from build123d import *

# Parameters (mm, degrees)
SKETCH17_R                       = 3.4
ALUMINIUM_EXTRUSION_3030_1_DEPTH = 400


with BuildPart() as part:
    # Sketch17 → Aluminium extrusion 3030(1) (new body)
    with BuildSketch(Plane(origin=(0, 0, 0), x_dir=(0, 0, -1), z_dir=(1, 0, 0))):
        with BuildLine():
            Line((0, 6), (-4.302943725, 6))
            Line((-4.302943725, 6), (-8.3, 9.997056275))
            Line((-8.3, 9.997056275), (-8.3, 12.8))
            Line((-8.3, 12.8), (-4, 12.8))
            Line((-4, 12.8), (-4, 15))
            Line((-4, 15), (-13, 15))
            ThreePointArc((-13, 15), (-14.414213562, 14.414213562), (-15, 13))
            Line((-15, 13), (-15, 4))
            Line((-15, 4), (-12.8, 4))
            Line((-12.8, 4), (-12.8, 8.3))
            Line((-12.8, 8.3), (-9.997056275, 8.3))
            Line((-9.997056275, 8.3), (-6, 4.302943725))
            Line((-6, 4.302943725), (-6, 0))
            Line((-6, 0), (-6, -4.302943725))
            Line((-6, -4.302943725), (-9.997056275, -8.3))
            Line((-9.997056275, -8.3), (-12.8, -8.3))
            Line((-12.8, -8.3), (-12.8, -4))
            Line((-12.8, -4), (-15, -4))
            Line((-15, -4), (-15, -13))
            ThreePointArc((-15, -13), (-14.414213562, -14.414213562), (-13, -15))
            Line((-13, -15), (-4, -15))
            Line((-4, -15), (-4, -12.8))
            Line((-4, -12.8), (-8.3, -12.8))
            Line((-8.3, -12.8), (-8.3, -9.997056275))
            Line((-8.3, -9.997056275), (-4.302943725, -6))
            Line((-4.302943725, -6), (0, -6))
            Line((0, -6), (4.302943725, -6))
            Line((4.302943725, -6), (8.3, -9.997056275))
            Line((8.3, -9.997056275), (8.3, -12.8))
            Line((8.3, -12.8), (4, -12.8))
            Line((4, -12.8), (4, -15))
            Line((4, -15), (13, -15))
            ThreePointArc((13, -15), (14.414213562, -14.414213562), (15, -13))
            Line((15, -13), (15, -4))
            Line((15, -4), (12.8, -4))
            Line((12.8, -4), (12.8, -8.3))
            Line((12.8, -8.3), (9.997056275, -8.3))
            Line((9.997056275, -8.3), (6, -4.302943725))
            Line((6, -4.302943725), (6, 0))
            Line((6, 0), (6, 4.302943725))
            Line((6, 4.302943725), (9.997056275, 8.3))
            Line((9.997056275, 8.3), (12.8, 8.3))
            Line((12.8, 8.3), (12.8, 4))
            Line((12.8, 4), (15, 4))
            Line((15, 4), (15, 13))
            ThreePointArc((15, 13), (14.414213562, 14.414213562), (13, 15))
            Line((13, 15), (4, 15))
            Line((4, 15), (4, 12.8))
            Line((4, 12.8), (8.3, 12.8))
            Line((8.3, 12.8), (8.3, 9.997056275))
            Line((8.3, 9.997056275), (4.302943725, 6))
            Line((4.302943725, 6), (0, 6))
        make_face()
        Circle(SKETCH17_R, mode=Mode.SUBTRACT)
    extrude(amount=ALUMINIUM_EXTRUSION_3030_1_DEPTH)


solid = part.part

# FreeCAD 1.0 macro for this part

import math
import FreeCAD as App
import Part
import Sketcher
from FreeCAD import Vector

doc = App.newDocument("Part")
body = doc.addObject("PartDesign::Body", "Body")

# Sketch on YZ plane
sketch1 = body.newObject("Sketcher::SketchObject", "Sketch")
sketch1.AttachmentSupport = (doc.getObject("YZ_Plane"), [""])
sketch1.MapMode = "FlatFace"
sketch1.addGeometry(Part.LineSegment(Vector(6, 4.3, 0), Vector(10, 8.3, 0)), False)
sketch1.addGeometry(Part.LineSegment(Vector(10, 8.3, 0), Vector(12.8, 8.3, 0)), False)
sketch1.addGeometry(Part.LineSegment(Vector(12.8, 8.3, 0), Vector(12.8, 4, 0)), False)
sketch1.addGeometry(Part.LineSegment(Vector(12.8, 4, 0), Vector(15, 4, 0)), False)
sketch1.addGeometry(Part.LineSegment(Vector(15, 4, 0), Vector(15, 13, 0)), False)
sketch1.addGeometry(Part.ArcOfCircle(Part.Circle(Vector(13, 13, 0), Vector(0, 0, 1), 2), math.radians(0), math.radians(90)), False)
sketch1.addGeometry(Part.LineSegment(Vector(13, 15, 0), Vector(4, 15, 0)), False)
sketch1.addGeometry(Part.LineSegment(Vector(4, 15, 0), Vector(4, 12.8, 0)), False)
sketch1.addGeometry(Part.LineSegment(Vector(4, 12.8, 0), Vector(8.3, 12.8, 0)), False)
sketch1.addGeometry(Part.LineSegment(Vector(8.3, 12.8, 0), Vector(8.3, 10, 0)), False)
sketch1.addGeometry(Part.LineSegment(Vector(8.3, 10, 0), Vector(4.3, 6, 0)), False)
sketch1.addGeometry(Part.LineSegment(Vector(4.3, 6, 0), Vector(-4.3, 6, 0)), False)
sketch1.addGeometry(Part.LineSegment(Vector(-4.3, 6, 0), Vector(-8.3, 10, 0)), False)
sketch1.addGeometry(Part.LineSegment(Vector(-8.3, 10, 0), Vector(-8.3, 12.8, 0)), False)
sketch1.addGeometry(Part.LineSegment(Vector(-8.3, 12.8, 0), Vector(-4, 12.8, 0)), False)
sketch1.addGeometry(Part.LineSegment(Vector(-4, 12.8, 0), Vector(-4, 15, 0)), False)
sketch1.addGeometry(Part.LineSegment(Vector(-4, 15, 0), Vector(-13, 15, 0)), False)
sketch1.addGeometry(Part.ArcOfCircle(Part.Circle(Vector(-13, 13, 0), Vector(0, 0, 1), 2), math.radians(90), math.radians(180)), False)
sketch1.addGeometry(Part.LineSegment(Vector(-15, 13, 0), Vector(-15, 4, 0)), False)
sketch1.addGeometry(Part.LineSegment(Vector(-15, 4, 0), Vector(-12.8, 4, 0)), False)
sketch1.addGeometry(Part.LineSegment(Vector(-12.8, 4, 0), Vector(-12.8, 8.3, 0)), False)
sketch1.addGeometry(Part.LineSegment(Vector(-12.8, 8.3, 0), Vector(-10, 8.3, 0)), False)
sketch1.addGeometry(Part.LineSegment(Vector(-10, 8.3, 0), Vector(-6, 4.3, 0)), False)
sketch1.addGeometry(Part.LineSegment(Vector(-6, 4.3, 0), Vector(-6, -4.3, 0)), False)
sketch1.addGeometry(Part.LineSegment(Vector(-6, -4.3, 0), Vector(-10, -8.3, 0)), False)
sketch1.addGeometry(Part.LineSegment(Vector(-10, -8.3, 0), Vector(-12.8, -8.3, 0)), False)
sketch1.addGeometry(Part.LineSegment(Vector(-12.8, -8.3, 0), Vector(-12.8, -4, 0)), False)
sketch1.addGeometry(Part.LineSegment(Vector(-12.8, -4, 0), Vector(-15, -4, 0)), False)
sketch1.addGeometry(Part.LineSegment(Vector(-15, -4, 0), Vector(-15, -13, 0)), False)
sketch1.addGeometry(Part.ArcOfCircle(Part.Circle(Vector(-13, -13, 0), Vector(0, 0, 1), 2), math.radians(-180), math.radians(-90)), False)
sketch1.addGeometry(Part.LineSegment(Vector(-13, -15, 0), Vector(-4, -15, 0)), False)
sketch1.addGeometry(Part.LineSegment(Vector(-4, -15, 0), Vector(-4, -12.8, 0)), False)
sketch1.addGeometry(Part.LineSegment(Vector(-4, -12.8, 0), Vector(-8.3, -12.8, 0)), False)
sketch1.addGeometry(Part.LineSegment(Vector(-8.3, -12.8, 0), Vector(-8.3, -10, 0)), False)
sketch1.addGeometry(Part.LineSegment(Vector(-8.3, -10, 0), Vector(-4.3, -6, 0)), False)
sketch1.addGeometry(Part.LineSegment(Vector(-4.3, -6, 0), Vector(4.3, -6, 0)), False)
sketch1.addGeometry(Part.LineSegment(Vector(4.3, -6, 0), Vector(8.3, -10, 0)), False)
sketch1.addGeometry(Part.LineSegment(Vector(8.3, -10, 0), Vector(8.3, -12.8, 0)), False)
sketch1.addGeometry(Part.LineSegment(Vector(8.3, -12.8, 0), Vector(4, -12.8, 0)), False)
sketch1.addGeometry(Part.LineSegment(Vector(4, -12.8, 0), Vector(4, -15, 0)), False)
sketch1.addGeometry(Part.LineSegment(Vector(4, -15, 0), Vector(13, -15, 0)), False)
sketch1.addGeometry(Part.ArcOfCircle(Part.Circle(Vector(13, -13, 0), Vector(0, 0, 1), 2), math.radians(-90), math.radians(0)), False)
sketch1.addGeometry(Part.LineSegment(Vector(15, -13, 0), Vector(15, -4, 0)), False)
sketch1.addGeometry(Part.LineSegment(Vector(15, -4, 0), Vector(12.8, -4, 0)), False)
sketch1.addGeometry(Part.LineSegment(Vector(12.8, -4, 0), Vector(12.8, -8.3, 0)), False)
sketch1.addGeometry(Part.LineSegment(Vector(12.8, -8.3, 0), Vector(10, -8.3, 0)), False)
sketch1.addGeometry(Part.LineSegment(Vector(10, -8.3, 0), Vector(6, -4.3, 0)), False)
sketch1.addGeometry(Part.LineSegment(Vector(6, -4.3, 0), Vector(6, 4.3, 0)), False)
sketch1.addGeometry(Part.Circle(Vector(0, 0, 0), Vector(0, 0, 1), 3.4), False)
sketch1.addConstraint(Sketcher.Constraint("Coincident", 0, 2, 1, 1))
sketch1.addConstraint(Sketcher.Constraint("Coincident", 1, 2, 2, 1))
sketch1.addConstraint(Sketcher.Constraint("Coincident", 2, 2, 3, 1))
sketch1.addConstraint(Sketcher.Constraint("Coincident", 3, 2, 4, 1))
sketch1.addConstraint(Sketcher.Constraint("Tangent", 4, 2, 5, 1))
sketch1.addConstraint(Sketcher.Constraint("Tangent", 5, 2, 6, 1))
sketch1.addConstraint(Sketcher.Constraint("Coincident", 6, 2, 7, 1))
sketch1.addConstraint(Sketcher.Constraint("Coincident", 7, 2, 8, 1))
sketch1.addConstraint(Sketcher.Constraint("Coincident", 8, 2, 9, 1))
sketch1.addConstraint(Sketcher.Constraint("Coincident", 9, 2, 10, 1))
sketch1.addConstraint(Sketcher.Constraint("Coincident", 10, 2, 11, 1))
sketch1.addConstraint(Sketcher.Constraint("Coincident", 11, 2, 12, 1))
sketch1.addConstraint(Sketcher.Constraint("Coincident", 12, 2, 13, 1))
sketch1.addConstraint(Sketcher.Constraint("Coincident", 13, 2, 14, 1))
sketch1.addConstraint(Sketcher.Constraint("Coincident", 14, 2, 15, 1))
sketch1.addConstraint(Sketcher.Constraint("Coincident", 15, 2, 16, 1))
sketch1.addConstraint(Sketcher.Constraint("Tangent", 16, 2, 17, 1))
sketch1.addConstraint(Sketcher.Constraint("Tangent", 17, 2, 18, 1))
sketch1.addConstraint(Sketcher.Constraint("Coincident", 18, 2, 19, 1))
sketch1.addConstraint(Sketcher.Constraint("Coincident", 19, 2, 20, 1))
sketch1.addConstraint(Sketcher.Constraint("Coincident", 20, 2, 21, 1))
sketch1.addConstraint(Sketcher.Constraint("Coincident", 21, 2, 22, 1))
sketch1.addConstraint(Sketcher.Constraint("Coincident", 22, 2, 23, 1))
sketch1.addConstraint(Sketcher.Constraint("Coincident", 23, 2, 24, 1))
sketch1.addConstraint(Sketcher.Constraint("Coincident", 24, 2, 25, 1))
sketch1.addConstraint(Sketcher.Constraint("Coincident", 25, 2, 26, 1))
sketch1.addConstraint(Sketcher.Constraint("Coincident", 26, 2, 27, 1))
sketch1.addConstraint(Sketcher.Constraint("Coincident", 27, 2, 28, 1))
sketch1.addConstraint(Sketcher.Constraint("Tangent", 28, 2, 29, 1))
sketch1.addConstraint(Sketcher.Constraint("Tangent", 29, 2, 30, 1))
sketch1.addConstraint(Sketcher.Constraint("Coincident", 30, 2, 31, 1))
sketch1.addConstraint(Sketcher.Constraint("Coincident", 31, 2, 32, 1))
sketch1.addConstraint(Sketcher.Constraint("Coincident", 32, 2, 33, 1))
sketch1.addConstraint(Sketcher.Constraint("Coincident", 33, 2, 34, 1))
sketch1.addConstraint(Sketcher.Constraint("Coincident", 34, 2, 35, 1))
sketch1.addConstraint(Sketcher.Constraint("Coincident", 35, 2, 36, 1))
sketch1.addConstraint(Sketcher.Constraint("Coincident", 36, 2, 37, 1))
sketch1.addConstraint(Sketcher.Constraint("Coincident", 37, 2, 38, 1))
sketch1.addConstraint(Sketcher.Constraint("Coincident", 38, 2, 39, 1))
sketch1.addConstraint(Sketcher.Constraint("Coincident", 39, 2, 40, 1))
sketch1.addConstraint(Sketcher.Constraint("Tangent", 40, 2, 41, 1))
sketch1.addConstraint(Sketcher.Constraint("Tangent", 41, 2, 42, 1))
sketch1.addConstraint(Sketcher.Constraint("Coincident", 42, 2, 43, 1))
sketch1.addConstraint(Sketcher.Constraint("Coincident", 43, 2, 44, 1))
sketch1.addConstraint(Sketcher.Constraint("Coincident", 44, 2, 45, 1))
sketch1.addConstraint(Sketcher.Constraint("Coincident", 45, 2, 46, 1))
sketch1.addConstraint(Sketcher.Constraint("Coincident", 46, 2, 47, 1))
sketch1.addConstraint(Sketcher.Constraint("Coincident", 47, 2, 0, 1))
sketch1.addConstraint(Sketcher.Constraint("Horizontal", 1))
sketch1.addConstraint(Sketcher.Constraint("Vertical", 2))
sketch1.addConstraint(Sketcher.Constraint("Horizontal", 3))
sketch1.addConstraint(Sketcher.Constraint("Vertical", 4))
sketch1.addConstraint(Sketcher.Constraint("Horizontal", 6))
sketch1.addConstraint(Sketcher.Constraint("Vertical", 7))
sketch1.addConstraint(Sketcher.Constraint("Horizontal", 8))
sketch1.addConstraint(Sketcher.Constraint("Vertical", 9))
sketch1.addConstraint(Sketcher.Constraint("Horizontal", 11))
sketch1.addConstraint(Sketcher.Constraint("Vertical", 13))
sketch1.addConstraint(Sketcher.Constraint("Horizontal", 14))
sketch1.addConstraint(Sketcher.Constraint("Vertical", 15))
sketch1.addConstraint(Sketcher.Constraint("Horizontal", 16))
sketch1.addConstraint(Sketcher.Constraint("Vertical", 18))
sketch1.addConstraint(Sketcher.Constraint("Horizontal", 19))
sketch1.addConstraint(Sketcher.Constraint("Vertical", 20))
sketch1.addConstraint(Sketcher.Constraint("Horizontal", 21))
sketch1.addConstraint(Sketcher.Constraint("Vertical", 23))
sketch1.addConstraint(Sketcher.Constraint("Horizontal", 25))
sketch1.addConstraint(Sketcher.Constraint("Vertical", 26))
sketch1.addConstraint(Sketcher.Constraint("Horizontal", 27))
sketch1.addConstraint(Sketcher.Constraint("Vertical", 28))
sketch1.addConstraint(Sketcher.Constraint("Horizontal", 30))
sketch1.addConstraint(Sketcher.Constraint("Vertical", 31))
sketch1.addConstraint(Sketcher.Constraint("Horizontal", 32))
sketch1.addConstraint(Sketcher.Constraint("Vertical", 33))
sketch1.addConstraint(Sketcher.Constraint("Horizontal", 35))
sketch1.addConstraint(Sketcher.Constraint("Vertical", 37))
sketch1.addConstraint(Sketcher.Constraint("Horizontal", 38))
sketch1.addConstraint(Sketcher.Constraint("Vertical", 39))
sketch1.addConstraint(Sketcher.Constraint("Horizontal", 40))
sketch1.addConstraint(Sketcher.Constraint("Vertical", 42))
sketch1.addConstraint(Sketcher.Constraint("Horizontal", 43))
sketch1.addConstraint(Sketcher.Constraint("Vertical", 44))
sketch1.addConstraint(Sketcher.Constraint("Horizontal", 45))
sketch1.addConstraint(Sketcher.Constraint("Vertical", 47))
sketch1.addConstraint(Sketcher.Constraint("Coincident", 48, 3, -1, 1))
sketch1.addConstraint(Sketcher.Constraint("Equal", 5, 17))
sketch1.addConstraint(Sketcher.Constraint("Equal", 17, 29))
sketch1.addConstraint(Sketcher.Constraint("Equal", 29, 41))
sketch1.addConstraint(Sketcher.Constraint("Symmetric", 5, 3, 29, 3, -1, 1))
sketch1.addConstraint(Sketcher.Constraint("Symmetric", 17, 3, 41, 3, -1, 1))
sketch1.addConstraint(Sketcher.Constraint("Symmetric", 0, 2, 24, 2, -1, 1))
sketch1.addConstraint(Sketcher.Constraint("Symmetric", 2, 2, 26, 2, -1, 1))
sketch1.addConstraint(Sketcher.Constraint("Symmetric", 7, 2, 31, 2, -1, 1))
sketch1.addConstraint(Sketcher.Constraint("Symmetric", 9, 2, 33, 2, -1, 1))
sketch1.addConstraint(Sketcher.Constraint("Symmetric", 10, 2, 34, 2, -1, 1))
sketch1.addConstraint(Sketcher.Constraint("Symmetric", 12, 2, 36, 2, -1, 1))
sketch1.addConstraint(Sketcher.Constraint("Symmetric", 14, 2, 38, 2, -1, 1))
sketch1.addConstraint(Sketcher.Constraint("Symmetric", 19, 2, 43, 2, -1, 1))
sketch1.addConstraint(Sketcher.Constraint("Symmetric", 21, 2, 45, 2, -1, 1))
sketch1.addConstraint(Sketcher.Constraint("Symmetric", 22, 2, 46, 2, -1, 1))
sketch1.addConstraint(Sketcher.Constraint("Symmetric", 5, 3, 17, 3, -2))
sketch1.addConstraint(Sketcher.Constraint("Symmetric", 9, 2, 12, 2, -2))
sketch1.addConstraint(Sketcher.Constraint("Symmetric", 7, 2, 14, 2, -2))
sketch1.addConstraint(Sketcher.Constraint("Symmetric", 2, 2, 19, 2, -2))
sketch1.addConstraint(Sketcher.Constraint("Symmetric", 0, 2, 21, 2, -2))
sketch1.addConstraint(Sketcher.Constraint("Parallel", 0, 10))
sketch1.addConstraint(Sketcher.Constraint("Perpendicular", 10, 12))
sketch1.addConstraint(Sketcher.Constraint("Parallel", 12, 22))
sketch1.addConstraint(Sketcher.Constraint("Perpendicular", 22, 24))
sketch1.addConstraint(Sketcher.Constraint("Perpendicular", 34, 36))
sketch1.addConstraint(Sketcher.Constraint("Horizontal", 23, 2, 46, 2))
sketch1.addConstraint(Sketcher.Constraint("Equal", 38, 2))
sketch1.addConstraint(Sketcher.Constraint("Equal", 40, 4))
sketch1.addConstraint(Sketcher.Constraint("Equal", 43, 7))
sketch1.addConstraint(Sketcher.Constraint("Equal", 45, 9))
sketch1.addConstraint(Sketcher.Constraint("Equal", 35, 23))
sketch1.addConstraint(Sketcher.Constraint("Equal", 0, 10))
sketch1.addConstraint(Sketcher.Constraint("Radius", 5, 2.0))
sketch1.addConstraint(Sketcher.Constraint("Diameter", 48, 6.8))
sketch1.addConstraint(Sketcher.Constraint("DistanceX", 6, 2, 6, 1, 9.0))
sketch1.addConstraint(Sketcher.Constraint("DistanceX", 3, 1, 3, 2, 2.2))
sketch1.addConstraint(Sketcher.Constraint("DistanceX", 8, 1, 8, 2, 4.3))
sketch1.addConstraint(Sketcher.Constraint("DistanceX", -1, 1, 5, 3, 13.0))
sketch1.addConstraint(Sketcher.Constraint("DistanceY", -1, 1, 10, 2, 6.0))
sketch1.addConstraint(Sketcher.Constraint("Distance", 0, 5.652691))
pad1 = body.newObject("PartDesign::Pad", "Pad")
pad1.Profile = sketch1
pad1.Length = 400

doc.recompute()
